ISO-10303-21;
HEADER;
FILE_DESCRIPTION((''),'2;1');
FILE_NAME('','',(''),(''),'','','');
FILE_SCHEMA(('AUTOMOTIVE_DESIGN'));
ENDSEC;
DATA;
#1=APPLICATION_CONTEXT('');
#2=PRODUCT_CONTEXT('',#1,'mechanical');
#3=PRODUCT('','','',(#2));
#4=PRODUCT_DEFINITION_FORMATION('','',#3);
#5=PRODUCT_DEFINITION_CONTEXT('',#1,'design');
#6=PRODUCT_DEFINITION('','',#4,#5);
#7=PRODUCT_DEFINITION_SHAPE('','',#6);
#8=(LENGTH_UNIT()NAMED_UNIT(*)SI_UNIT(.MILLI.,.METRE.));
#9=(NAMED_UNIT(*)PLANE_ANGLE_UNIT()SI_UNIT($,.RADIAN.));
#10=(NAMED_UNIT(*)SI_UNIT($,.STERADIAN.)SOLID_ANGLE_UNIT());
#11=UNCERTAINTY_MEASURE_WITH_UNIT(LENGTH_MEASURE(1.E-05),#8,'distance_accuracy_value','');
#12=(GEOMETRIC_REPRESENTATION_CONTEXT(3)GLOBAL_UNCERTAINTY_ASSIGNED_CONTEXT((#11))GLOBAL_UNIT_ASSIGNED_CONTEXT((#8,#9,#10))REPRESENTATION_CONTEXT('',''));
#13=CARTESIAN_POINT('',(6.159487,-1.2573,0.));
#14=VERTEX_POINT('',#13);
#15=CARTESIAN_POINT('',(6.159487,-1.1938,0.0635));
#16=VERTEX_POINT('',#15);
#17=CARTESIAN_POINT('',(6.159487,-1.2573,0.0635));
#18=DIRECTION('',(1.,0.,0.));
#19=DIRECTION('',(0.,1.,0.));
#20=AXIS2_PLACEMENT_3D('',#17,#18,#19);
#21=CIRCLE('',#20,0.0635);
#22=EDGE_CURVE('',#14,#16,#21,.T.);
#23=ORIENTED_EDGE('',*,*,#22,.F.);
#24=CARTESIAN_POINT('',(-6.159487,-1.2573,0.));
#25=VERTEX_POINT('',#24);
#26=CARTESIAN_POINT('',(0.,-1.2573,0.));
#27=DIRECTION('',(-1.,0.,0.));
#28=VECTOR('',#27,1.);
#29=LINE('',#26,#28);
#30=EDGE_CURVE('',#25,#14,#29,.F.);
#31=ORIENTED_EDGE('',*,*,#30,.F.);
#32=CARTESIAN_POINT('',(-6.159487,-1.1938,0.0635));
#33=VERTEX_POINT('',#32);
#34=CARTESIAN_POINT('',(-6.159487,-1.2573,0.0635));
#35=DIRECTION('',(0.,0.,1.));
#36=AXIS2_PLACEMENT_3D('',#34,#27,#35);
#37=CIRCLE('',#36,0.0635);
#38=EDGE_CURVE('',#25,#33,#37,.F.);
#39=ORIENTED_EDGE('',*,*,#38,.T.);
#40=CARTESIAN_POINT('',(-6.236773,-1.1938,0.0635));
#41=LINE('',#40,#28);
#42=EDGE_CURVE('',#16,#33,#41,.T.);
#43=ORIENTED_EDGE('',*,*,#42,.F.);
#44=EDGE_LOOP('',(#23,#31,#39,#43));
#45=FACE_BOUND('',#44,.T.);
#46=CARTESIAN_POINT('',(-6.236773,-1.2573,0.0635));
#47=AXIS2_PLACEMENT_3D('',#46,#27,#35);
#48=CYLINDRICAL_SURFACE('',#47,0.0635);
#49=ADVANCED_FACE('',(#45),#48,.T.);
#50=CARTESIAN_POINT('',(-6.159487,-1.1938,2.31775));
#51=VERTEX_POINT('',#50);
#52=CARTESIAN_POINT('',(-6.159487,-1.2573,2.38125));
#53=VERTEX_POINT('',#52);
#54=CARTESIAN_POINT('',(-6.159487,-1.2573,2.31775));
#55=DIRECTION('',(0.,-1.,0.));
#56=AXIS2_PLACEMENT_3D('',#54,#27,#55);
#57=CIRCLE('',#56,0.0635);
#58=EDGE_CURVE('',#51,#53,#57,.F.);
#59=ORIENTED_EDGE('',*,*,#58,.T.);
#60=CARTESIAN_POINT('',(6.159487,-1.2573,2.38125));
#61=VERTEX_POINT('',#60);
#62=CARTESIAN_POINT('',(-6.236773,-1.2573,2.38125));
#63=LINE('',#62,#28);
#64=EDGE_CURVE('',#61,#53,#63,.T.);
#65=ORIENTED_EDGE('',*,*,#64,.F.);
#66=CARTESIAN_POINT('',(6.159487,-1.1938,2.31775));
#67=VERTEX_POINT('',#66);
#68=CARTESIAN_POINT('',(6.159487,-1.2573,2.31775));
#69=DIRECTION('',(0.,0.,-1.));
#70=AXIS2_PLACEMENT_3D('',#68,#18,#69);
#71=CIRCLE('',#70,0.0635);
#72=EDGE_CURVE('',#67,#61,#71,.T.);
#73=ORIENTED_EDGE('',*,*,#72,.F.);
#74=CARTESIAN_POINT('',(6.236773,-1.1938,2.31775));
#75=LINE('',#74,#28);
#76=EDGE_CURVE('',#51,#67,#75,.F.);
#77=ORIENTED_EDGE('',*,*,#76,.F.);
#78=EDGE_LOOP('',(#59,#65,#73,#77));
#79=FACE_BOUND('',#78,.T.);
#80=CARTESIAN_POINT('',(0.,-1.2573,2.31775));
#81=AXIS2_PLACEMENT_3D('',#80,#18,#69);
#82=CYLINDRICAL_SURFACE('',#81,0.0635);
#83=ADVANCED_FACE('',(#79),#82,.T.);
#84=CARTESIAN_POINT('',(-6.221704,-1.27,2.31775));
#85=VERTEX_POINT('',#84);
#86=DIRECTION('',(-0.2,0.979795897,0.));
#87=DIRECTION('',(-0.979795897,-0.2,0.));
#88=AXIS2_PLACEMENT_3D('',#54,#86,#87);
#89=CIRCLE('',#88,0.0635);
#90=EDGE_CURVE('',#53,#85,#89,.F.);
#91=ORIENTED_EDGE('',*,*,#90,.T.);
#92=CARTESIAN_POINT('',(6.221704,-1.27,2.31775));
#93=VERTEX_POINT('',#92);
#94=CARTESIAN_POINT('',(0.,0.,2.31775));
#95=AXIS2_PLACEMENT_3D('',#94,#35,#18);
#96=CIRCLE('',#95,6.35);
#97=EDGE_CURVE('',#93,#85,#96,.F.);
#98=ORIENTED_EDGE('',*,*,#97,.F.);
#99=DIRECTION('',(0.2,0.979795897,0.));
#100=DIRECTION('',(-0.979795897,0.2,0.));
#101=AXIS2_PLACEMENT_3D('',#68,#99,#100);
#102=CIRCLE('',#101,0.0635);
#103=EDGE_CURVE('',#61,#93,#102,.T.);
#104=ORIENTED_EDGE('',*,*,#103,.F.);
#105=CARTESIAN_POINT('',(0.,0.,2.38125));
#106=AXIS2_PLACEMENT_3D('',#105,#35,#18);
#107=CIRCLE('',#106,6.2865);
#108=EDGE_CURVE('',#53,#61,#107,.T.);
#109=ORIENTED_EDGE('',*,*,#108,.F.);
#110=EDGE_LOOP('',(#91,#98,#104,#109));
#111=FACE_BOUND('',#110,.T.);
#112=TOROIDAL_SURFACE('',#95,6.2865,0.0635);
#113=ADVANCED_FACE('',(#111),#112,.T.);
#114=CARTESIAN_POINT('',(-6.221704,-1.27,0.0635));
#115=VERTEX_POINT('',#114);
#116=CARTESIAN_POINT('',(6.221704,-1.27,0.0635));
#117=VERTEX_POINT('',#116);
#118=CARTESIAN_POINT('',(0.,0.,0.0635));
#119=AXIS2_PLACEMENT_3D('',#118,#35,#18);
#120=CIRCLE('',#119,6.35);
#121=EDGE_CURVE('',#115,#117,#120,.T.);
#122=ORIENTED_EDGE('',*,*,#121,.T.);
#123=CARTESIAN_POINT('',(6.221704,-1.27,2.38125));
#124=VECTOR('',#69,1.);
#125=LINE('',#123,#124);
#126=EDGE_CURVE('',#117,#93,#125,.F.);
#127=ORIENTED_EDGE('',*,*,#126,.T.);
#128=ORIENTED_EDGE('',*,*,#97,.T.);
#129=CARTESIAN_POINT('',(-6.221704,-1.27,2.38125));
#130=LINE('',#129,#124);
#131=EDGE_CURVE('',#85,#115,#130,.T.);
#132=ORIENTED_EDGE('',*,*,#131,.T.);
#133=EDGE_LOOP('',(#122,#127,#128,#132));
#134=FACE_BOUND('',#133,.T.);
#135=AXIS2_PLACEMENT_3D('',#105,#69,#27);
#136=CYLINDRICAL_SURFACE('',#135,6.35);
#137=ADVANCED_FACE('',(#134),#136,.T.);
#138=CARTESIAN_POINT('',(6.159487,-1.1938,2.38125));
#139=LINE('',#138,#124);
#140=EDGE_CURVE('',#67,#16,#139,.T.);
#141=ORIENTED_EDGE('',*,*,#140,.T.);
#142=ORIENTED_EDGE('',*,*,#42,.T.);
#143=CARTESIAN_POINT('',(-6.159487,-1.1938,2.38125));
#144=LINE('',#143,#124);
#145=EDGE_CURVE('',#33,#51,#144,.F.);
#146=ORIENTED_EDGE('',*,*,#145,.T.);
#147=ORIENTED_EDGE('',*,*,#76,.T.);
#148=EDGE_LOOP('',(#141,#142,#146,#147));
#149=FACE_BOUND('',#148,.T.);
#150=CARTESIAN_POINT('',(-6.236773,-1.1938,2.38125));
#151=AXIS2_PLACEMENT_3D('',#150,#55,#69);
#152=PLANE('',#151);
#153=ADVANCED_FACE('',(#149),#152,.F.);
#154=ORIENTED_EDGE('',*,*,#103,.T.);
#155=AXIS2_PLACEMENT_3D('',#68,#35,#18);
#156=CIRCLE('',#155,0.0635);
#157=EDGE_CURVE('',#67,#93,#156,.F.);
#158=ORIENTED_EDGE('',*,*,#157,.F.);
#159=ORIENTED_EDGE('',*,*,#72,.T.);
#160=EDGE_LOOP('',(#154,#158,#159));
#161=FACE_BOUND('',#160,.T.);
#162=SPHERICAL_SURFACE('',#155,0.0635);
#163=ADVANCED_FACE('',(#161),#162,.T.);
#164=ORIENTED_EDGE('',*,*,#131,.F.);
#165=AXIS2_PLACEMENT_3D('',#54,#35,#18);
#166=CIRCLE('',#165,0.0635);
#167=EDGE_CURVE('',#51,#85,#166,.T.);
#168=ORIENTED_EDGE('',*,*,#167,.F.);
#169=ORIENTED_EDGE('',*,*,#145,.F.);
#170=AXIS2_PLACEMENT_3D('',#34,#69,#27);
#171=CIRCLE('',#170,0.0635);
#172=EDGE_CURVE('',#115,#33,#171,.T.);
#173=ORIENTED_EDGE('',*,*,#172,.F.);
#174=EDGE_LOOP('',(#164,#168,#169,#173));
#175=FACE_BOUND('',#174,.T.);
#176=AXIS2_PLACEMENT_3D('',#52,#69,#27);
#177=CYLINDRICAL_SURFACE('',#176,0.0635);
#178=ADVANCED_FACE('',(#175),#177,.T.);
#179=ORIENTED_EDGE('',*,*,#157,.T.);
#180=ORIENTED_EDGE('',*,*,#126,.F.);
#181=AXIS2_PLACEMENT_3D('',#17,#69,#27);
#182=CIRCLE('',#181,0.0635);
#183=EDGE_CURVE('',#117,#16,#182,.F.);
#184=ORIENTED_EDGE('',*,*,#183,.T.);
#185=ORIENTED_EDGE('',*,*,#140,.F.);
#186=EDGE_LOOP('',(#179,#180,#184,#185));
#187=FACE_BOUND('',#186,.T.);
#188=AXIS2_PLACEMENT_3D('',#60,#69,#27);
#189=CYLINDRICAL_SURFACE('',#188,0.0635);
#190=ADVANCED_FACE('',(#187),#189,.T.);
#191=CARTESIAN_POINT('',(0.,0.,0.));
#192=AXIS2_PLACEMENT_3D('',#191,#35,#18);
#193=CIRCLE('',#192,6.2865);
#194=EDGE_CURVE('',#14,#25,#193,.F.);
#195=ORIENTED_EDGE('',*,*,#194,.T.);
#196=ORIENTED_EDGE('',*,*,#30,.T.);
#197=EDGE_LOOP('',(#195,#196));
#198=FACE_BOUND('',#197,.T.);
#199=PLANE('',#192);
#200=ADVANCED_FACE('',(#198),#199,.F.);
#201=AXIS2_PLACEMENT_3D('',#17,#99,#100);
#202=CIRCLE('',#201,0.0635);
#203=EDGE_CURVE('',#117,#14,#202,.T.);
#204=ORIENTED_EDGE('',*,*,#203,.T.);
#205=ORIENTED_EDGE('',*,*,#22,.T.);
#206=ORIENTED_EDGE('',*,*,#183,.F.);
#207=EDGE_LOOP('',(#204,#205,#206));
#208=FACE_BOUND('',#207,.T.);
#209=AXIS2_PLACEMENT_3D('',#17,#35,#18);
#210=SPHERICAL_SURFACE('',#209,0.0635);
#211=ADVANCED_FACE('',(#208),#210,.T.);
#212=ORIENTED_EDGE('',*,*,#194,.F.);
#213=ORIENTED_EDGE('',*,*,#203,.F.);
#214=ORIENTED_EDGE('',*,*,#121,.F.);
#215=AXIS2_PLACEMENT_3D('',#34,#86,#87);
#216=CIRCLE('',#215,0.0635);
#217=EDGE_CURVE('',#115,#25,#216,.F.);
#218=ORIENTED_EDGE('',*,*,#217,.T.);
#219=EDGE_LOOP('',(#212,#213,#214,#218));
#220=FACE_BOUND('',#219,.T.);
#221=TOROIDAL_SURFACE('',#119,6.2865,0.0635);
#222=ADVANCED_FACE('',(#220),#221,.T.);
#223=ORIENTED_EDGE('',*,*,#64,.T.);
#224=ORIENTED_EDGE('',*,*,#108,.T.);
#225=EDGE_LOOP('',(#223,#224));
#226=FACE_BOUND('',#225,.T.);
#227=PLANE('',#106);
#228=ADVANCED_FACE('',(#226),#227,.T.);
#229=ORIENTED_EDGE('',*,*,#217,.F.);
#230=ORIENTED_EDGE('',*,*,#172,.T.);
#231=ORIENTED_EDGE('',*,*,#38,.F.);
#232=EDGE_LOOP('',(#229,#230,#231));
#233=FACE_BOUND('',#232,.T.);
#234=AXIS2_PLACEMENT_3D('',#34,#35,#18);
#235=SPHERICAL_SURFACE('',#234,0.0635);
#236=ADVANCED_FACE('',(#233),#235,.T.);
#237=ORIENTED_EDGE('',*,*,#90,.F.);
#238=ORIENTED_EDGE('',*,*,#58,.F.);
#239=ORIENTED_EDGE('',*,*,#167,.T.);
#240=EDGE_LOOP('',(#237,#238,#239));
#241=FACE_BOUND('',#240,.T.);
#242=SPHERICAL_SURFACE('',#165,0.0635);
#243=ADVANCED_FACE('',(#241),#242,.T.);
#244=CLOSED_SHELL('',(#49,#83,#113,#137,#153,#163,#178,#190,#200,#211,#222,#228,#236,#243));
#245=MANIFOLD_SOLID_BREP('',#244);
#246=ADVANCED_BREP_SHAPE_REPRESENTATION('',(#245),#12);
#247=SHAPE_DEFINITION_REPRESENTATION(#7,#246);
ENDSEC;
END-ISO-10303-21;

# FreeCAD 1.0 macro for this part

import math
import FreeCAD as App
import Part
import Sketcher
from FreeCAD import Vector
Q = App.Units.Quantity

doc = App.newDocument("Part")
body = doc.addObject("PartDesign::Body", "Body")

# Sketch on XY plane
sketch1 = body.newObject("Sketcher::SketchObject", "Sketch")
sketch1.AttachmentSupport = (doc.getObject("XY_Plane"), [""])
sketch1.MapMode = "FlatFace"
sketch1.addGeometry([
    Part.LineSegment(Vector(6, -1, 0), Vector(-6, -1, 0)),
    Part.ArcOfCircle(Part.Circle(Vector(0, 0, 0), Vector(0, 0, 1), 6), math.radians(-169), math.radians(-11)),
], False)
sketch1.addConstraint([
    Sketcher.Constraint("Coincident", 0, 1, 1, 2),
    Sketcher.Constraint("Coincident", 1, 1, 0, 2),
    Sketcher.Constraint("Horizontal", 0),
    Sketcher.Constraint("Coincident", 1, 3, -1, 1),
    Sketcher.Constraint("Radius", 1, Q("0.25 in")),
    Sketcher.Constraint("DistanceY", 0, 1, -1, 1, Q("0.047 in")),
])
pad1 = body.newObject("PartDesign::Pad", "Pad")
pad1.Profile = sketch1
pad1.Length = Q("0.09375 in")
doc.recompute()

fillet = body.newObject("PartDesign::Fillet", "Fillet")
fillet.Base = (pad1, ["Edge1"])
fillet.UseAllEdges = True
fillet.Radius = Q("0.0025 in")

doc.recompute()
